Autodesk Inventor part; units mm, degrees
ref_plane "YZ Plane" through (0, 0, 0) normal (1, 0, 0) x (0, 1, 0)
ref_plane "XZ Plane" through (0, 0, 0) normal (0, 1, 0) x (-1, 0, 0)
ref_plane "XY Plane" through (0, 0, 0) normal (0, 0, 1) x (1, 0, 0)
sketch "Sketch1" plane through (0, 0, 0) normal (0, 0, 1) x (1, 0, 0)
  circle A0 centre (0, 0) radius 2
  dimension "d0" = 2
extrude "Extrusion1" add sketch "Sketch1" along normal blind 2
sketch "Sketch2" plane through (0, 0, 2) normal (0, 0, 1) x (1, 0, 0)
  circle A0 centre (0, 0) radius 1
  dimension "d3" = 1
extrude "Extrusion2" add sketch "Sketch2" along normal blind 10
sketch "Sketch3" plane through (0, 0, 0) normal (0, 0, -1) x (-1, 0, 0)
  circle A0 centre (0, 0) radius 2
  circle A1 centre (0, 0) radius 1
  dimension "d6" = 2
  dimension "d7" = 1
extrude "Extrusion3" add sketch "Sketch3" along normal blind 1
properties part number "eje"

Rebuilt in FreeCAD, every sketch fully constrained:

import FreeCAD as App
import Part
import Sketcher
from FreeCAD import Vector
Q = App.Units.Quantity

doc = App.newDocument("Part")
body = doc.addObject("PartDesign::Body", "Body")

# Sketch on XY plane
sketch1 = body.newObject("Sketcher::SketchObject", "Sketch")
sketch1.AttachmentSupport = (doc.getObject("XY_Plane"), [""])
sketch1.MapMode = "FlatFace"
sketch1.addGeometry(Part.Circle(Vector(0, 0, 0), Vector(0, 0, 1), 2), False)
sketch1.addConstraint([
    Sketcher.Constraint("Coincident", 0, 3, -1, 1),
    Sketcher.Constraint("Diameter", 0, Q("4 mm")),
])
pad1 = body.newObject("PartDesign::Pad", "Pad")
pad1.Profile = sketch1
pad1.Length = 2

# Sketch on XY plane
sketch2 = body.newObject("Sketcher::SketchObject", "Sketch001")
sketch2.AttachmentSupport = (doc.getObject("XY_Plane"), [""])
sketch2.MapMode = "FlatFace"
sketch2.AttachmentOffset = App.Placement(Vector(0, 0, 2), App.Rotation())
sketch2.addGeometry(Part.Circle(Vector(0, 0, 0), Vector(0, 0, 1), 1), False)
sketch2.addConstraint([
    Sketcher.Constraint("Coincident", 0, 3, -1, 1),
    Sketcher.Constraint("Diameter", 0, Q("2 mm")),
])
pad2 = body.newObject("PartDesign::Pad", "Pad001")
pad2.Profile = sketch2
pad2.Length = 10

# Sketch on XY plane
sketch3 = body.newObject("Sketcher::SketchObject", "Sketch002")
sketch3.AttachmentSupport = (doc.getObject("XY_Plane"), [""])
sketch3.MapMode = "FlatFace"
sketch3.addGeometry([
    Part.Circle(Vector(0, 0, 0), Vector(0, 0, 1), 2),
    Part.Circle(Vector(0, 0, 0), Vector(0, 0, 1), 1),
], False)
sketch3.addConstraint([
    Sketcher.Constraint("Coincident", 0, 3, -1, 1),
    Sketcher.Constraint("Coincident", 1, 3, -1, 1),
    Sketcher.Constraint("Diameter", 0, Q("4 mm")),
    Sketcher.Constraint("Diameter", 1, Q("2 mm")),
])
pad3 = body.newObject("PartDesign::Pad", "Pad002")
pad3.Profile = sketch3
pad3.Length = 1
pad3.Reversed = True

doc.recompute()
